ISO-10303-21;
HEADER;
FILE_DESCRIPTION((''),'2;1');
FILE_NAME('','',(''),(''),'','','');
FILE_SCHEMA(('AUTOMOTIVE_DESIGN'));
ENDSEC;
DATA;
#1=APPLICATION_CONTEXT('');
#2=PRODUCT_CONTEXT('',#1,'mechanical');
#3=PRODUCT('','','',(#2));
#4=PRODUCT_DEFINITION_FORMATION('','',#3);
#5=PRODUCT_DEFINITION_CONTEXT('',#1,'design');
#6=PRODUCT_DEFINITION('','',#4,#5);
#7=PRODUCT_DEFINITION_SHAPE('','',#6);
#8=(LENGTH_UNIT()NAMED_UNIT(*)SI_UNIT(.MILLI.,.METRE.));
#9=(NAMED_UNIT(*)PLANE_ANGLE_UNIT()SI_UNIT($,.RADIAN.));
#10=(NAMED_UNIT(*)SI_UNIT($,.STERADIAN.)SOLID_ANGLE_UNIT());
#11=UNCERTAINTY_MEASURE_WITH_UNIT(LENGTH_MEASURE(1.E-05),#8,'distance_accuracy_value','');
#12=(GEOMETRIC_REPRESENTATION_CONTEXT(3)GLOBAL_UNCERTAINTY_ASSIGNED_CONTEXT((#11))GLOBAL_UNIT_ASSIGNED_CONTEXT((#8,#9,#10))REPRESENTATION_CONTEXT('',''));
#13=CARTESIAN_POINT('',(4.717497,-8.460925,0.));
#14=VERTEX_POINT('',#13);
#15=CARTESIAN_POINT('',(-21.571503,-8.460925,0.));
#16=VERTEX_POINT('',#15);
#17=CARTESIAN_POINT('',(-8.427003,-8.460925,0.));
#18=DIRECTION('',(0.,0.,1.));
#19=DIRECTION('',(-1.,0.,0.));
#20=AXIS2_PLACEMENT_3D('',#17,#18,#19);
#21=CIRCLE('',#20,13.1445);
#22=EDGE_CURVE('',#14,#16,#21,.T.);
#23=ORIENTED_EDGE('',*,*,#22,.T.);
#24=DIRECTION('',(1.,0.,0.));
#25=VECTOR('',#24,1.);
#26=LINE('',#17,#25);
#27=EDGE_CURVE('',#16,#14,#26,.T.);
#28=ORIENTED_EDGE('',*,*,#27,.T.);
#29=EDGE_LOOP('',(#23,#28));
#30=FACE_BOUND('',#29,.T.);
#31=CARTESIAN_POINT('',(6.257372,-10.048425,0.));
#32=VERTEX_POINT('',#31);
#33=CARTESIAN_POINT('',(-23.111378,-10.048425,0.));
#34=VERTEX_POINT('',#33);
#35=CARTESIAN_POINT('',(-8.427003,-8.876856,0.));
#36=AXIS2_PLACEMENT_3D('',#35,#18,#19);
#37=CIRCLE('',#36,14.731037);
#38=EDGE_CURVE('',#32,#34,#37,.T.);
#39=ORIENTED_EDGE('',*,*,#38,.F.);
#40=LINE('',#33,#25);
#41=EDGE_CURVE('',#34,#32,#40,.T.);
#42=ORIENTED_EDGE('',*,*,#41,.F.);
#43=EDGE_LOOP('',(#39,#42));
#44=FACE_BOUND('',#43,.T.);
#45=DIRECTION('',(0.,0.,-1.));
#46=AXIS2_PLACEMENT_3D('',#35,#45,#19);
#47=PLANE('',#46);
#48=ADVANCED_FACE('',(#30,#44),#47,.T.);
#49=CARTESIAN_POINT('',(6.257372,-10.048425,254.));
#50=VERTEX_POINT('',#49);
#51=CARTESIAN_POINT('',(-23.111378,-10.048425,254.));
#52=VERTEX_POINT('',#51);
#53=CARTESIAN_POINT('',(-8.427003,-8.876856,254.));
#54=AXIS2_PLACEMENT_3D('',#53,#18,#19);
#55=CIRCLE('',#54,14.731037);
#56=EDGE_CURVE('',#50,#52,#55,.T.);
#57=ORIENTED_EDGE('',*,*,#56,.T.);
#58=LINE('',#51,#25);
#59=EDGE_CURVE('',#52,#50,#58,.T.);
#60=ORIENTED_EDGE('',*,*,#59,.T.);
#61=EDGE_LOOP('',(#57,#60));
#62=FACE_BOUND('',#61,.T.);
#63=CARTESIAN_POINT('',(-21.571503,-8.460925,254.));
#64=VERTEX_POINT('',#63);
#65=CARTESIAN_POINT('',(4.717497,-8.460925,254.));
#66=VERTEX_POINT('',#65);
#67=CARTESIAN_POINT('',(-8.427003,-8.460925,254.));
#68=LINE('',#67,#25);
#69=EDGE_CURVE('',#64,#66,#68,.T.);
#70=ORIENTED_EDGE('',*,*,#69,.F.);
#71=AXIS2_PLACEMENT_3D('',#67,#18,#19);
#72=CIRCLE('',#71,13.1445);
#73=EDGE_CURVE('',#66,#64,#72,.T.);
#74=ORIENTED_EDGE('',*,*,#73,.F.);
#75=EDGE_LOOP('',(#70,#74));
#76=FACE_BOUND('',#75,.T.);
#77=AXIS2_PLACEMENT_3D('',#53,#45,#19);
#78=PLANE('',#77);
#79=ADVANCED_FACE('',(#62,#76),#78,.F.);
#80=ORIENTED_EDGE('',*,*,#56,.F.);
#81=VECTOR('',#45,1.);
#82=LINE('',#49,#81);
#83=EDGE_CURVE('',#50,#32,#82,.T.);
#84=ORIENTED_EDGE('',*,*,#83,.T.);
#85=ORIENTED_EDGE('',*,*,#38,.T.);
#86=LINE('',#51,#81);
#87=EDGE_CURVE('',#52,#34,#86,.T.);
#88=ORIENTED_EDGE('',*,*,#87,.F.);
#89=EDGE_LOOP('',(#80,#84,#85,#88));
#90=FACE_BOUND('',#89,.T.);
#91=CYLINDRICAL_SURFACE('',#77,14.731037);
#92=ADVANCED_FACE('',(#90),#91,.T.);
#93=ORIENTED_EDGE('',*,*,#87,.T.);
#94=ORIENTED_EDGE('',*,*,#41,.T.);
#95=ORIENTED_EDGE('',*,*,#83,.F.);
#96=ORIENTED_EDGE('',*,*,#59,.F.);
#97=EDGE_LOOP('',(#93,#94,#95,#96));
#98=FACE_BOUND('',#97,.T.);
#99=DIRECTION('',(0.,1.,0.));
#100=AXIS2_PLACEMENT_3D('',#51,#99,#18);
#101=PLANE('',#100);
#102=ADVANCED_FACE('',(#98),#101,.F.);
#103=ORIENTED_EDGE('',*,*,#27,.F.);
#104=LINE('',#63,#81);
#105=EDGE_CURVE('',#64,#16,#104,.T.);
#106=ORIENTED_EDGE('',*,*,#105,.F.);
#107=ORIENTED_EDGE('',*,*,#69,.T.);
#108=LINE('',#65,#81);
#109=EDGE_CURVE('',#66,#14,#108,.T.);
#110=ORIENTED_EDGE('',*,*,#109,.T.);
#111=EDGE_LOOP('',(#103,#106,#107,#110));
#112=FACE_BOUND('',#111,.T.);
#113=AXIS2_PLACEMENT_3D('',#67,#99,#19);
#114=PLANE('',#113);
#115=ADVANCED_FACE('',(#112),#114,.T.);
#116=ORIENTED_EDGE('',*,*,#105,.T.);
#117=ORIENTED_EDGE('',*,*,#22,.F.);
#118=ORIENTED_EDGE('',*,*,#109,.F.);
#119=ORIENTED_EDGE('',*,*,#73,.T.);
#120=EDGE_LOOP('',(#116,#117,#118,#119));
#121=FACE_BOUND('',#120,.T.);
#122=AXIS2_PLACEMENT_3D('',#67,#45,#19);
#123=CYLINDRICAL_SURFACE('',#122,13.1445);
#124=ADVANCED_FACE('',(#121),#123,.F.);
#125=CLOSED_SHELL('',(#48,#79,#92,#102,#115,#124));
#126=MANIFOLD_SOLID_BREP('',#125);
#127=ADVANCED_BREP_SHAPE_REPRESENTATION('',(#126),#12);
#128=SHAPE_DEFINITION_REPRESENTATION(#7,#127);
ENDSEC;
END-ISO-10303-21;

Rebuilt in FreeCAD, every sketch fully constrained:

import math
import FreeCAD as App
import Part
import Sketcher
Q = App.Units.Quantity

doc = App.newDocument("Part")
params = doc.addObject("Spreadsheet::Sheet", "Params")
for row, (alias, value) in enumerate([
    ("sketch1_width", "1.15625 in"),
    ("pad1_length", "10 in"),
], start=1):
    params.set(f"A{row}", alias)
    params.set(f"B{row}", "=" + value)
    params.setAlias(f"B{row}", alias)

body = doc.addObject("PartDesign::Body", "Body")

# Sketch on XY plane
sketch1 = body.newObject("Sketcher::SketchObject", "Sketch")
sketch1.AttachmentSupport = (doc.getObject("XY_Plane"), [""])
sketch1.MapMode = "FlatFace"
sketch1.addGeometry([
    Part.LineSegment(App.Vector(-23, -10, 0), App.Vector(6, -10, 0)),
    Part.ArcOfCircle(Part.Circle(App.Vector(-8, -9, 0), App.Vector(0, 0, 1), 15), math.radians(-5), math.radians(185)),
    Part.LineSegment(App.Vector(5, -8, 0), App.Vector(-22, -8, 0)),
    Part.ArcOfCircle(Part.Circle(App.Vector(-8, -8, 0), App.Vector(0, 0, 1), 13), math.radians(0), math.radians(180)),
], False)
sketch1.addConstraint([
    Sketcher.Constraint("Coincident", 0, 1, 1, 2),
    Sketcher.Constraint("Coincident", 1, 1, 0, 2),
    Sketcher.Constraint("Coincident", 2, 1, 3, 1),
    Sketcher.Constraint("Coincident", 3, 2, 2, 2),
    Sketcher.Constraint("Horizontal", 0),
    Sketcher.Constraint("Horizontal", 2),
    Sketcher.Constraint("Horizontal", 3, 3, 2, 1),
    Sketcher.Constraint("Vertical", 1, 3, 3, 3),
    Sketcher.Constraint("Radius", 3, Q("0.5175 in")),
    Sketcher.Constraint("DistanceX", 0, 1, 0, 2, Q("1.15625 in")),
    Sketcher.Constraint("DistanceY", 0, 1, 3, 3, Q("0.0625 in")),
    Sketcher.Constraint("Radius", 1, Q("14.731037 mm")),
    Sketcher.Constraint("DistanceX", 1, 3, -1, 1, Q("8.427003 mm")),
    Sketcher.Constraint("DistanceY", 1, 3, -1, 1, Q("8.876856 mm")),
])
sketch1.setExpression("Constraints[9]", "Params.sketch1_width")
pad1 = body.newObject("PartDesign::Pad", "Pad")
pad1.Profile = sketch1
pad1.setExpression("Length", "Params.pad1_length")

doc.recompute()
